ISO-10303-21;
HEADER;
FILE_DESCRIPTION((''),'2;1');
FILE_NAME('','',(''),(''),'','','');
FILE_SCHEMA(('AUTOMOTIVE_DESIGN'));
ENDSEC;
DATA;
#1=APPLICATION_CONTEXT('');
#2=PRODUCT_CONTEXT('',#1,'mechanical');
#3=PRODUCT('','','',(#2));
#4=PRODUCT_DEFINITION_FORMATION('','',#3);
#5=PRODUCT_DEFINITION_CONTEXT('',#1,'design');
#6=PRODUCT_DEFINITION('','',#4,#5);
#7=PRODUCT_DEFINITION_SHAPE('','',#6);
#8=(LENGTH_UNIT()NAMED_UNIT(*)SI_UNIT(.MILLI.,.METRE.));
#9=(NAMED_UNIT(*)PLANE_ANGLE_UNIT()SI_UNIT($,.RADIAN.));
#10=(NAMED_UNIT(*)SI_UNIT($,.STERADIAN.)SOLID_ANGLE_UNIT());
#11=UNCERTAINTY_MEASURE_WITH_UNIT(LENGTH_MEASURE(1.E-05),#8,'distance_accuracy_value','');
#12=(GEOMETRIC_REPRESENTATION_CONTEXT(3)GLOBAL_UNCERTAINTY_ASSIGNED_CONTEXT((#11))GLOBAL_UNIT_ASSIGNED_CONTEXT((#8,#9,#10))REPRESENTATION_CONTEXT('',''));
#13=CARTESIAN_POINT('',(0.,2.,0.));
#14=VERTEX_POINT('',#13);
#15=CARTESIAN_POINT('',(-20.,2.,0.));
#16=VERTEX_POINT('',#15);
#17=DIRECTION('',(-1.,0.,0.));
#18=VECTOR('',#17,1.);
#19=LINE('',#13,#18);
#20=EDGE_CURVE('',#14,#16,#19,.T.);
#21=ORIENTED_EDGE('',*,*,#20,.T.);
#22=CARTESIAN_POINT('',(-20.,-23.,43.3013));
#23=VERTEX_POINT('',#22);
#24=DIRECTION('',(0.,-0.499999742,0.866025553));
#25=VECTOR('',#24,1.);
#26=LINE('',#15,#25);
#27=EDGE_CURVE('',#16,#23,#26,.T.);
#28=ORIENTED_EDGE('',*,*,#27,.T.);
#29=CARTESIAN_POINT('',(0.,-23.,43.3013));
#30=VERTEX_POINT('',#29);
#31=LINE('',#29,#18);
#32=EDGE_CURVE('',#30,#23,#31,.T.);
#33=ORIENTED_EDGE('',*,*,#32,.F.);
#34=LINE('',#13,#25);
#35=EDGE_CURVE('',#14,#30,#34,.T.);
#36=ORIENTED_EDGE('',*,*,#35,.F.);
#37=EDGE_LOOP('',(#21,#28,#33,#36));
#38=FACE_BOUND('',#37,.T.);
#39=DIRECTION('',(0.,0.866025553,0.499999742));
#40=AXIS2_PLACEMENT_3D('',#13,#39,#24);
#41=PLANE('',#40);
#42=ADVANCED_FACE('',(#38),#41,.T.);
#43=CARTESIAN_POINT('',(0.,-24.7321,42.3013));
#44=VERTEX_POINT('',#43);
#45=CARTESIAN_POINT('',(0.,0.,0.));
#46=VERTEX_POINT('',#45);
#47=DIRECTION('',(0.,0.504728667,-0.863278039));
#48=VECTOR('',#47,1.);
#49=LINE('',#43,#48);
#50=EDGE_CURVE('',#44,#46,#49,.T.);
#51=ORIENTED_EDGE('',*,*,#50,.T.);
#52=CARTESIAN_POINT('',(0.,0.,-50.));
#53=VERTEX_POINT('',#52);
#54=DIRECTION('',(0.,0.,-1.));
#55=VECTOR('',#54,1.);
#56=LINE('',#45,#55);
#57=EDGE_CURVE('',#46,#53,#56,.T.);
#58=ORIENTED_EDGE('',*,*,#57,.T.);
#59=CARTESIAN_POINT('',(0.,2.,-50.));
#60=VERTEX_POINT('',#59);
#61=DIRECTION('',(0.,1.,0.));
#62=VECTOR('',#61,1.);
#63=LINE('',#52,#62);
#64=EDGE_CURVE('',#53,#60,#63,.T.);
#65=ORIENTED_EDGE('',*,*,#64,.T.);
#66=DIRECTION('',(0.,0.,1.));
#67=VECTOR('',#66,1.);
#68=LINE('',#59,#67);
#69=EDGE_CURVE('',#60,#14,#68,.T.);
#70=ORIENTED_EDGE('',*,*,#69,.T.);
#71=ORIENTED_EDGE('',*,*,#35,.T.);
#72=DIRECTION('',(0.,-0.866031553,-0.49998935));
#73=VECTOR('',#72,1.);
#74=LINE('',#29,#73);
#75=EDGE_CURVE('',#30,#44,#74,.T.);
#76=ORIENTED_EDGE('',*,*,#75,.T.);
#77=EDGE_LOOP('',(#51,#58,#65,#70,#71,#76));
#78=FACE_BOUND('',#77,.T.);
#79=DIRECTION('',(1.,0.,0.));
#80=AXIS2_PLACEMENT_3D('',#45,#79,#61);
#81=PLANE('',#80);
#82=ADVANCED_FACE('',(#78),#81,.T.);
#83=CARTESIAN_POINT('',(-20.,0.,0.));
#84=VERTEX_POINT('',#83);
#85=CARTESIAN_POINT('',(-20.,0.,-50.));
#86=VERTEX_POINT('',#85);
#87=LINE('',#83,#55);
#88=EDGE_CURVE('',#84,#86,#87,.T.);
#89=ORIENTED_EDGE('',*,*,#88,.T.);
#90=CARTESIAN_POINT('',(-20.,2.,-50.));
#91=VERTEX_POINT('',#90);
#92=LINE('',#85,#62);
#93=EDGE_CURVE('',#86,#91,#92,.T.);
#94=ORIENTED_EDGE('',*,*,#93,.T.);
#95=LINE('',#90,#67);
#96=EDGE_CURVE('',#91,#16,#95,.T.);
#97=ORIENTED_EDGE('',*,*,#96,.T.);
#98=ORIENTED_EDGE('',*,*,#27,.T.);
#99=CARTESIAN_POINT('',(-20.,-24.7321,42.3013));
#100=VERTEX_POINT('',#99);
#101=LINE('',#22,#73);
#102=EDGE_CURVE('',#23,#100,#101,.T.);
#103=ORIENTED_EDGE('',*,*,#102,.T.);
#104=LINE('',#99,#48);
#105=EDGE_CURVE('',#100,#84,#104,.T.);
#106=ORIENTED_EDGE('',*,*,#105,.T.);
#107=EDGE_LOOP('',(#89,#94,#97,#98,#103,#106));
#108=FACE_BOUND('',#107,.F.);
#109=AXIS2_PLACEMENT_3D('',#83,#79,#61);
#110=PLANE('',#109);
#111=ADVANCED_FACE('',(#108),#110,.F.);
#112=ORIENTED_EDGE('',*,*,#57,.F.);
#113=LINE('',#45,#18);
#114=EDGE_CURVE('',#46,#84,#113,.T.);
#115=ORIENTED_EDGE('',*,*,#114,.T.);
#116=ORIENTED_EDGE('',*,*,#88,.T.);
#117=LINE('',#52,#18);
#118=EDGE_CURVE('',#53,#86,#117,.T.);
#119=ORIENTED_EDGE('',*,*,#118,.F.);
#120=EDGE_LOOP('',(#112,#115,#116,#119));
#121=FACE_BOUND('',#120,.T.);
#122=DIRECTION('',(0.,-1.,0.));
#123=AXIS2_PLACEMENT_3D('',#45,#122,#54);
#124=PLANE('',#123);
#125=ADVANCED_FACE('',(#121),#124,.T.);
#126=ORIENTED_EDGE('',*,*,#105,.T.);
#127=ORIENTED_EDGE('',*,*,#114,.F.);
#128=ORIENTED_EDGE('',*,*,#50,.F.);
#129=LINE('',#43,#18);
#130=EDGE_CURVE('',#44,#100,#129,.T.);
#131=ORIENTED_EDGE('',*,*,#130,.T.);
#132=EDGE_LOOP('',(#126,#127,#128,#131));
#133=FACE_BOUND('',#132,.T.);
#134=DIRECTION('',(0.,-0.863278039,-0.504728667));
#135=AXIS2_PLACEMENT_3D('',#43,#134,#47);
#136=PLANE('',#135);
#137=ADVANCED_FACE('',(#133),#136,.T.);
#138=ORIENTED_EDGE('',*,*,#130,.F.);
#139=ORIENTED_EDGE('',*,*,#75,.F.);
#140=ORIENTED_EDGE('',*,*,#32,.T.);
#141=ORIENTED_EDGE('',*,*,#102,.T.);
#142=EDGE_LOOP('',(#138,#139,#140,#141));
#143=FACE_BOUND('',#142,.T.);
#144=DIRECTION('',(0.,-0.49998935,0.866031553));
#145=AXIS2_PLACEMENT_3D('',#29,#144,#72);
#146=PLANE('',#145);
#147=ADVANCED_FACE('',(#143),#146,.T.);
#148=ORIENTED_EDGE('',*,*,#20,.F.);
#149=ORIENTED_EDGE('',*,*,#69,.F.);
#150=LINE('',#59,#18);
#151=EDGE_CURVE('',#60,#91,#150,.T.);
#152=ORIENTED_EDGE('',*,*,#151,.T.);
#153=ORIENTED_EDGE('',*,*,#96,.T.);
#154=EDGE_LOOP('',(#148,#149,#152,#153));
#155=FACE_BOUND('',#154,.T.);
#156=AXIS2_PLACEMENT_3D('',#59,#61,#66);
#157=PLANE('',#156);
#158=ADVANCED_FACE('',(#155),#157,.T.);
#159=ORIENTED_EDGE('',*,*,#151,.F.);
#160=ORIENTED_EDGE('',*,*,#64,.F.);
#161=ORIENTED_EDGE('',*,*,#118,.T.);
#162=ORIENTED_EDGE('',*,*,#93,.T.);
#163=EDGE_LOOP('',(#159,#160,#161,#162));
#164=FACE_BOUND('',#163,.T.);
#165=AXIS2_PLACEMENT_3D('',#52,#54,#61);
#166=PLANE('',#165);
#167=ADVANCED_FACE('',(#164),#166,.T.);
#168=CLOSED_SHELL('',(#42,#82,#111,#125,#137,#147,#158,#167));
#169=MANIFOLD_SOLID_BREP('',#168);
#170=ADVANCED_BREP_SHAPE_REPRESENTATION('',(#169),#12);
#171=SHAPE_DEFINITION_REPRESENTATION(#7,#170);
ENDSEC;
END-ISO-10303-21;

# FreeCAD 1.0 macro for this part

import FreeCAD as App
import Part
import Sketcher
from FreeCAD import Vector
Q = App.Units.Quantity

doc = App.newDocument("Part")
body = doc.addObject("PartDesign::Body", "Body")

sketch1 = body.newObject("Sketcher::SketchObject", "Sketch")
sketch1.AttachmentSupport = (doc.getObject("YZ_Plane"), [""])
sketch1.MapMode = "FlatFace"
sketch1.addGeometry(Part.LineSegment(Vector(-24.7, 42.3, 0), Vector(0, 0, 0)), False)
sketch1.addGeometry(Part.LineSegment(Vector(0, 0, 0), Vector(0, -50, 0)), False)
sketch1.addGeometry(Part.LineSegment(Vector(0, -50, 0), Vector(2, -50, 0)), False)
sketch1.addGeometry(Part.LineSegment(Vector(2, -50, 0), Vector(2, 0, 0)), False)
sketch1.addGeometry(Part.LineSegment(Vector(2, 0, 0), Vector(-23, 43.3, 0)), False)
sketch1.addGeometry(Part.LineSegment(Vector(-23, 43.3, 0), Vector(-24.7, 42.3, 0)), False)
sketch1.addConstraint(Sketcher.Constraint("Coincident", 0, 2, 1, 1))
sketch1.addConstraint(Sketcher.Constraint("Coincident", 1, 2, 2, 1))
sketch1.addConstraint(Sketcher.Constraint("Coincident", 2, 2, 3, 1))
sketch1.addConstraint(Sketcher.Constraint("Coincident", 3, 2, 4, 1))
sketch1.addConstraint(Sketcher.Constraint("Coincident", 4, 2, 5, 1))
sketch1.addConstraint(Sketcher.Constraint("Coincident", 5, 2, 0, 1))
sketch1.addConstraint(Sketcher.Constraint("Vertical", 1))
sketch1.addConstraint(Sketcher.Constraint("Horizontal", 2))
sketch1.addConstraint(Sketcher.Constraint("Vertical", 3))
sketch1.addConstraint(Sketcher.Constraint("Coincident", 0, 2, -1, 1))
sketch1.addConstraint(Sketcher.Constraint("PointOnObject", 3, 2, -1))
sketch1.addConstraint(Sketcher.Constraint("Perpendicular", 4, 5))
sketch1.addConstraint(Sketcher.Constraint("DistanceX", 2, 1, 2, 2, 2.0))
sketch1.addConstraint(Sketcher.Constraint("DistanceY", 1, 2, 1, 1, 50.0))
sketch1.addConstraint(Sketcher.Constraint("Distance", 4, 50.0))
sketch1.addConstraint(Sketcher.Constraint("Distance", 5, 2.0))
sketch1.addConstraint(Sketcher.Constraint("Angle", 4, Q("120 deg")))
pad1 = body.newObject("PartDesign::Pad", "Pad")
pad1.Profile = sketch1
pad1.Length = 20
pad1.Reversed = True

doc.recompute()
